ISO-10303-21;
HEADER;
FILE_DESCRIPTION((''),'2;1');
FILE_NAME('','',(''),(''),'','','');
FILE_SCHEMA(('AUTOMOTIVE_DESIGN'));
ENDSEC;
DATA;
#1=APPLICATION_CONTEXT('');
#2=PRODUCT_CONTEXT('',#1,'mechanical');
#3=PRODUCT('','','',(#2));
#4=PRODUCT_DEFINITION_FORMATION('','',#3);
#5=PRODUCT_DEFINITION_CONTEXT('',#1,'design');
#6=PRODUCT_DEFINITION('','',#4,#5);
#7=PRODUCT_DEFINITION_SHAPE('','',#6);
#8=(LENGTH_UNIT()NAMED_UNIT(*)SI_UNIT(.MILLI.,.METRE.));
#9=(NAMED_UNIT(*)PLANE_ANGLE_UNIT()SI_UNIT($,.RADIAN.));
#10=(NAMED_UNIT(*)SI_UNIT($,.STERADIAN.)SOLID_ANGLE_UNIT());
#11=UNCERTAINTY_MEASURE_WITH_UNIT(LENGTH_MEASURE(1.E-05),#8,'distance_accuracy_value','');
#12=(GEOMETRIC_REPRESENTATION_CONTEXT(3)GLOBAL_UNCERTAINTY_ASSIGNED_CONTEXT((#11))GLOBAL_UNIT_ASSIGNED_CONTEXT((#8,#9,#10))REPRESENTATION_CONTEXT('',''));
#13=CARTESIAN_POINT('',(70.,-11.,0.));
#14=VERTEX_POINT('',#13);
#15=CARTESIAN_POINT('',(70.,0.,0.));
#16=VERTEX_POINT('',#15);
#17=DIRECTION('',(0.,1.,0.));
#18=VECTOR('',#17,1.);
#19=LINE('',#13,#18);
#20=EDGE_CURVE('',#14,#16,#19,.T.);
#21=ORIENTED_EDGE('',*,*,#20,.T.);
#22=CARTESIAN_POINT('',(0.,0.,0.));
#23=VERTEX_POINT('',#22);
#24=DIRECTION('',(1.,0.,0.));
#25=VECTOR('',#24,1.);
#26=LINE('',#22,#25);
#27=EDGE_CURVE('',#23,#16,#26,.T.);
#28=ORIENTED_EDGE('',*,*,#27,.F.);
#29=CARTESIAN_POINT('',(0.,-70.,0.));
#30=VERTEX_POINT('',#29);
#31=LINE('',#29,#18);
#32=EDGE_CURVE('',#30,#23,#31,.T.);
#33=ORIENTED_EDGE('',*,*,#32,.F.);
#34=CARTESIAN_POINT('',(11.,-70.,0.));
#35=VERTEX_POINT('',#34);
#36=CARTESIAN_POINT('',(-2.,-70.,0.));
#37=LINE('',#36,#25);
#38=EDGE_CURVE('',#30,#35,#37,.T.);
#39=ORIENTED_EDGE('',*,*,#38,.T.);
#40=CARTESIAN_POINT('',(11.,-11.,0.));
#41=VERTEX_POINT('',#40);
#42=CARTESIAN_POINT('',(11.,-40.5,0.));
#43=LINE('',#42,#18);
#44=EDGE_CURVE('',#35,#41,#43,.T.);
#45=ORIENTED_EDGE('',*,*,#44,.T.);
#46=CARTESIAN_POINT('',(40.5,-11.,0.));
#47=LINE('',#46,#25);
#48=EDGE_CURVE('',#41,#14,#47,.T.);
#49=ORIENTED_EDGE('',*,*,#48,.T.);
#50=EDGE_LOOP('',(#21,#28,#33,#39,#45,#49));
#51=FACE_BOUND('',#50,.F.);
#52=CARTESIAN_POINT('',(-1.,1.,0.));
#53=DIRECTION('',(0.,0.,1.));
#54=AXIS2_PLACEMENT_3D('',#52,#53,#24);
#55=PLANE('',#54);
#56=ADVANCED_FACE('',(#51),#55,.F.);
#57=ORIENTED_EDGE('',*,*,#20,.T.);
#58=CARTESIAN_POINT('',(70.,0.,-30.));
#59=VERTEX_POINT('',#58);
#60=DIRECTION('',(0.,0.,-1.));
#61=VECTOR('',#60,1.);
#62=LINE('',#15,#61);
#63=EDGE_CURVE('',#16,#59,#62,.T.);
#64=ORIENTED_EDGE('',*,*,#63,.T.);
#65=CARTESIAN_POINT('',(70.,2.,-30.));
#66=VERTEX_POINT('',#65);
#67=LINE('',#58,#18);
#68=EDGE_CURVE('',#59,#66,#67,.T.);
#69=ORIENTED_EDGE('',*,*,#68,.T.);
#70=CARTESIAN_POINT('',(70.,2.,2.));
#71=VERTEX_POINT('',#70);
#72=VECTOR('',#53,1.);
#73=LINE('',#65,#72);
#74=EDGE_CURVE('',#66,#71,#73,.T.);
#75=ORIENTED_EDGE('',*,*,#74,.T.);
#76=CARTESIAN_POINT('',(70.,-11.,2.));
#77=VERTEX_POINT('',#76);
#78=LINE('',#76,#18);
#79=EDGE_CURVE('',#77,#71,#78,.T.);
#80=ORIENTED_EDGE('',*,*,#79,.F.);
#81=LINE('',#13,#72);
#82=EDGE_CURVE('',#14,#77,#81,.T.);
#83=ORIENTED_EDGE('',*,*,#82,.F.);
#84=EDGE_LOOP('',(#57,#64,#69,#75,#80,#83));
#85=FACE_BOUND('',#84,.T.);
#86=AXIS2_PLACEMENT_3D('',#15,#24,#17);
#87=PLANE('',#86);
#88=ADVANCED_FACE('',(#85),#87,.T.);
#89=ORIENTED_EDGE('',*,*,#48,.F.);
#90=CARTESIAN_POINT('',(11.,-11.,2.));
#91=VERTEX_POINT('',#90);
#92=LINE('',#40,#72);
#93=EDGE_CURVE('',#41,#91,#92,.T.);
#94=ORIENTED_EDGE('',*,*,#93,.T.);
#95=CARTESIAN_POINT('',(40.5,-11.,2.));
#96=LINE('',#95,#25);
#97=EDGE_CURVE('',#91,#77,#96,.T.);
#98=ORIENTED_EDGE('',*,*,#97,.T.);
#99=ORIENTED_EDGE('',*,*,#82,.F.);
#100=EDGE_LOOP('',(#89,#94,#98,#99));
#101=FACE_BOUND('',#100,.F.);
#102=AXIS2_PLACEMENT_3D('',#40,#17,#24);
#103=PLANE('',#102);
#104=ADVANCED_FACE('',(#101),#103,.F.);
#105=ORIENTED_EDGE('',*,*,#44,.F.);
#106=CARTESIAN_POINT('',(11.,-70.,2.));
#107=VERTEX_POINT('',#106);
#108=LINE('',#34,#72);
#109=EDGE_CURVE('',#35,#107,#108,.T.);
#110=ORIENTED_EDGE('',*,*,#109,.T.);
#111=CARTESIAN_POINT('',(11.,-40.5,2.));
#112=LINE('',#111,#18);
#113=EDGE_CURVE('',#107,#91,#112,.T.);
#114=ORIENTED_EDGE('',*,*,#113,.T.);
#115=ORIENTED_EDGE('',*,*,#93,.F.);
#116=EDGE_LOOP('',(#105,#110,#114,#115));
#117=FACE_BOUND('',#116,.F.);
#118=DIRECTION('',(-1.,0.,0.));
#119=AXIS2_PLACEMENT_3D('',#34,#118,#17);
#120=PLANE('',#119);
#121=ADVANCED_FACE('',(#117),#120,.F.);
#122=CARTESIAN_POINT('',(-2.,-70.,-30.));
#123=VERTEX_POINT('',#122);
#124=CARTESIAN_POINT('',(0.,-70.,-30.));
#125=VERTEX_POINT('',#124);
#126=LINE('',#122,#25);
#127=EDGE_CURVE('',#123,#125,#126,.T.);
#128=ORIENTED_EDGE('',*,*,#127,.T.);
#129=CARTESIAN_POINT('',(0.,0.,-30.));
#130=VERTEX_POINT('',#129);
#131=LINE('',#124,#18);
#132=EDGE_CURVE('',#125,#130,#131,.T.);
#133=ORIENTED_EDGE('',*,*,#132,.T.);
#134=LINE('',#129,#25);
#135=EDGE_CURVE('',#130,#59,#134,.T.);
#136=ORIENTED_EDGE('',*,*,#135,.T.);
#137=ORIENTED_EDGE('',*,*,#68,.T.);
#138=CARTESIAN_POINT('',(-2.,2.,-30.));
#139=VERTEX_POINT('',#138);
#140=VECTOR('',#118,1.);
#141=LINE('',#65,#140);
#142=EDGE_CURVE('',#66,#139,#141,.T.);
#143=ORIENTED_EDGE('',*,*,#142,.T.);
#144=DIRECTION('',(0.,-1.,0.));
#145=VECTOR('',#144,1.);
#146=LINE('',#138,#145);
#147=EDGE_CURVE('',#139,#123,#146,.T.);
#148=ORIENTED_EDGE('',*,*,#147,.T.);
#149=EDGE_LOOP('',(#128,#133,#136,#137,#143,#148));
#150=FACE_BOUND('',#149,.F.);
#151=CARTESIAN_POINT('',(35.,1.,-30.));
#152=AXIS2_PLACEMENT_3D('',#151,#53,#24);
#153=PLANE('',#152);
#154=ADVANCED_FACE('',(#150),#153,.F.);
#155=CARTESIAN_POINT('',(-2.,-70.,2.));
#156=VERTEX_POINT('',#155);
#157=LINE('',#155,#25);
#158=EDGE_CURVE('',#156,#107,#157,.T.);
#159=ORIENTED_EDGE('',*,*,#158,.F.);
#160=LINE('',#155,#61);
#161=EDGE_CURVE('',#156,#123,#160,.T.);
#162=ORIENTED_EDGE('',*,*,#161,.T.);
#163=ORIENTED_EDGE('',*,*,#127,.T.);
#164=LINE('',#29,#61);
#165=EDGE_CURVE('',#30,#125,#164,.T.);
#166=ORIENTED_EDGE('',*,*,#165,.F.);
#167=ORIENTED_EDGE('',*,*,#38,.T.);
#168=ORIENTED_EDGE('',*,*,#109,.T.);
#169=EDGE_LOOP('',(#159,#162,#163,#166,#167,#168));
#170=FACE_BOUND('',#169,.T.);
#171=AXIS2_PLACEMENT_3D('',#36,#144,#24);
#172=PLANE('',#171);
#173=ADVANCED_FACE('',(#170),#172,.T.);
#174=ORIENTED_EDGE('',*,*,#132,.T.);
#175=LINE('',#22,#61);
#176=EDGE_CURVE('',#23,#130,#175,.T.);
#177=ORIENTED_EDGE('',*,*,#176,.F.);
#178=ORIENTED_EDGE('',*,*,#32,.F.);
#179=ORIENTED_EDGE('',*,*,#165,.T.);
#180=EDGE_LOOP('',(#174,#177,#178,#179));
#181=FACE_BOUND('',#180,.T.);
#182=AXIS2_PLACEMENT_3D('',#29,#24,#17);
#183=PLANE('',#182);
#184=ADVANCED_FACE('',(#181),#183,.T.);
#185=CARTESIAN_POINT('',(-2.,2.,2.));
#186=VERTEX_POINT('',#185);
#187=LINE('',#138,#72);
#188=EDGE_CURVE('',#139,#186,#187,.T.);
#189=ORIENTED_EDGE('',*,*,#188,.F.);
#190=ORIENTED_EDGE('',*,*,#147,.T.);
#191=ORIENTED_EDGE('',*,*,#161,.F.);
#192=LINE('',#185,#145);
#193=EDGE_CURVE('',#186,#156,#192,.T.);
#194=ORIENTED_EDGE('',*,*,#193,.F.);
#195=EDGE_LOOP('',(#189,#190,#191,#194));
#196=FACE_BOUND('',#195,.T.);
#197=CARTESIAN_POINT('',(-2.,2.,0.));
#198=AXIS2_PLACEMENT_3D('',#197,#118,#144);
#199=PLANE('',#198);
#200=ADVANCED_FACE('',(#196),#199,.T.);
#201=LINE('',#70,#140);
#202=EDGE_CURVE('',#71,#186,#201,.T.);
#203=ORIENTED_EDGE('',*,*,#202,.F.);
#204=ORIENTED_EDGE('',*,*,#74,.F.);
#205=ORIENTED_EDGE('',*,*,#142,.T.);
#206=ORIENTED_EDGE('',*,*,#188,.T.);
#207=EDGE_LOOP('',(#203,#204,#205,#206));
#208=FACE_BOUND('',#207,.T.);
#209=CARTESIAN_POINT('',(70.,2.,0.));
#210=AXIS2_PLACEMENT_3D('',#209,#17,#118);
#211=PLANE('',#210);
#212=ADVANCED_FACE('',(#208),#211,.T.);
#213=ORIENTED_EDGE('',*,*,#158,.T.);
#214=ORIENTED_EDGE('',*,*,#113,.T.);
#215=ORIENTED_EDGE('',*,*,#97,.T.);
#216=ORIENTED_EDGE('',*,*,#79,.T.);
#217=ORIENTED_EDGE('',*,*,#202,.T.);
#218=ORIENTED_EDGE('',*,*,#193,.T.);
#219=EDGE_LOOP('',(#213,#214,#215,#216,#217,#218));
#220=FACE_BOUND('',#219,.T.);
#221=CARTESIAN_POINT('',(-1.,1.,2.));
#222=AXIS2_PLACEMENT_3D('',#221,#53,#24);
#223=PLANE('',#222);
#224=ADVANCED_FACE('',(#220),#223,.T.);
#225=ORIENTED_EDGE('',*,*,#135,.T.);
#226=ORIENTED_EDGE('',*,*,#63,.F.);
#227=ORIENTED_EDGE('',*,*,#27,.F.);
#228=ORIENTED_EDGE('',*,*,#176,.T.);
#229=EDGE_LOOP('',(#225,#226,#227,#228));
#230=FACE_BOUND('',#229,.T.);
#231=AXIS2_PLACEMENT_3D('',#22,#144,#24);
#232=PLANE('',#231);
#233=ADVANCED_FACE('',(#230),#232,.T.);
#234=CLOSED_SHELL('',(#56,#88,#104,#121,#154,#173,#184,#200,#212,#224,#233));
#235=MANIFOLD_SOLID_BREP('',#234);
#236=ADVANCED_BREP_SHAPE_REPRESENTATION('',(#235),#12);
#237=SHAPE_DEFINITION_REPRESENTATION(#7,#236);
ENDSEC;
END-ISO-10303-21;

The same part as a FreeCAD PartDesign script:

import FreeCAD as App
import Part
import Sketcher
from FreeCAD import Vector
Q = App.Units.Quantity


def add_polygon(sketch, points):
    """Adds a closed chain of lines whose ends are joined by coincident constraints."""
    first, n = sketch.GeometryCount, len(points)
    for a, b in zip(points, points[1:] + points[:1]):
        sketch.addGeometry(Part.LineSegment(App.Vector(*a, 0), App.Vector(*b, 0)), False)
    for i in range(n):
        sketch.addConstraint(Sketcher.Constraint("Coincident", first + i, 2, first + (i + 1) % n, 1))

doc = App.newDocument("Part")
params = doc.addObject("Spreadsheet::Sheet", "Params")
for row, (alias, value) in enumerate([
    ("sketch1_width", "59 mm"),
    ("sketch1_width2", "72 mm"),
    ("pad1_length", "2 mm"),
    ("sketch2_width", "70 mm"),
    ("sketch2_width2", "72 mm"),
    ("pad2_length", "30 mm"),
], start=1):
    params.set(f"A{row}", alias)
    params.set(f"B{row}", "=" + value)
    params.setAlias(f"B{row}", alias)

body = doc.addObject("PartDesign::Body", "Body")

sketch1 = body.newObject("Sketcher::SketchObject", "Sketch")
sketch1.AttachmentSupport = (doc.getObject("XY_Plane"), [""])
sketch1.MapMode = "FlatFace"
add_polygon(sketch1, [(11, -70), (11, -11), (70, -11), (70, 2), (-2, 2), (-2, -70)])
sketch1.addConstraint([
    Sketcher.Constraint("Vertical", 0),
    Sketcher.Constraint("Horizontal", 1),
    Sketcher.Constraint("Vertical", 2),
    Sketcher.Constraint("Horizontal", 3),
    Sketcher.Constraint("Vertical", 4),
    Sketcher.Constraint("Horizontal", 5),
    Sketcher.Constraint("Equal", 1, 0),
    Sketcher.Constraint("Equal", 5, 2),
    Sketcher.Constraint("DistanceX", 1, 1, 1, 2, Q("59 mm")),
    Sketcher.Constraint("DistanceX", 3, 2, 3, 1, Q("72 mm")),
    Sketcher.Constraint("DistanceX", -1, 1, 0, 2, Q("11 mm")),
    Sketcher.Constraint("DistanceY", 0, 2, -1, 1, Q("11 mm")),
])
sketch1.setExpression("Constraints[14]", "Params.sketch1_width")
sketch1.setExpression("Constraints[15]", "Params.sketch1_width2")
pad1 = body.newObject("PartDesign::Pad", "Pad")
pad1.Profile = sketch1
pad1.setExpression("Length", "Params.pad1_length")

sketch2 = body.newObject("Sketcher::SketchObject", "Sketch001")
sketch2.AttachmentSupport = (doc.getObject("XY_Plane"), [""])
sketch2.MapMode = "FlatFace"
add_polygon(sketch2, [(0, 0), (70, 0), (70, 2), (-2, 2), (-2, -70), (0, -70)])
sketch2.addConstraint([
    Sketcher.Constraint("Horizontal", 0),
    Sketcher.Constraint("Vertical", 1),
    Sketcher.Constraint("Horizontal", 2),
    Sketcher.Constraint("Vertical", 3),
    Sketcher.Constraint("Horizontal", 4),
    Sketcher.Constraint("Vertical", 5),
    Sketcher.Constraint("Coincident", 5, 2, -1, 1),
    Sketcher.Constraint("Equal", 4, 1),
    Sketcher.Constraint("Equal", 2, 3),
    Sketcher.Constraint("DistanceX", 0, 1, 0, 2, Q("70 mm")),
    Sketcher.Constraint("DistanceX", 2, 2, 2, 1, Q("72 mm")),
])
sketch2.setExpression("Constraints[15]", "Params.sketch2_width")
sketch2.setExpression("Constraints[16]", "Params.sketch2_width2")
pad2 = body.newObject("PartDesign::Pad", "Pad001")
pad2.Profile = sketch2
pad2.setExpression("Length", "Params.pad2_length")
pad2.Reversed = True

doc.recompute()
